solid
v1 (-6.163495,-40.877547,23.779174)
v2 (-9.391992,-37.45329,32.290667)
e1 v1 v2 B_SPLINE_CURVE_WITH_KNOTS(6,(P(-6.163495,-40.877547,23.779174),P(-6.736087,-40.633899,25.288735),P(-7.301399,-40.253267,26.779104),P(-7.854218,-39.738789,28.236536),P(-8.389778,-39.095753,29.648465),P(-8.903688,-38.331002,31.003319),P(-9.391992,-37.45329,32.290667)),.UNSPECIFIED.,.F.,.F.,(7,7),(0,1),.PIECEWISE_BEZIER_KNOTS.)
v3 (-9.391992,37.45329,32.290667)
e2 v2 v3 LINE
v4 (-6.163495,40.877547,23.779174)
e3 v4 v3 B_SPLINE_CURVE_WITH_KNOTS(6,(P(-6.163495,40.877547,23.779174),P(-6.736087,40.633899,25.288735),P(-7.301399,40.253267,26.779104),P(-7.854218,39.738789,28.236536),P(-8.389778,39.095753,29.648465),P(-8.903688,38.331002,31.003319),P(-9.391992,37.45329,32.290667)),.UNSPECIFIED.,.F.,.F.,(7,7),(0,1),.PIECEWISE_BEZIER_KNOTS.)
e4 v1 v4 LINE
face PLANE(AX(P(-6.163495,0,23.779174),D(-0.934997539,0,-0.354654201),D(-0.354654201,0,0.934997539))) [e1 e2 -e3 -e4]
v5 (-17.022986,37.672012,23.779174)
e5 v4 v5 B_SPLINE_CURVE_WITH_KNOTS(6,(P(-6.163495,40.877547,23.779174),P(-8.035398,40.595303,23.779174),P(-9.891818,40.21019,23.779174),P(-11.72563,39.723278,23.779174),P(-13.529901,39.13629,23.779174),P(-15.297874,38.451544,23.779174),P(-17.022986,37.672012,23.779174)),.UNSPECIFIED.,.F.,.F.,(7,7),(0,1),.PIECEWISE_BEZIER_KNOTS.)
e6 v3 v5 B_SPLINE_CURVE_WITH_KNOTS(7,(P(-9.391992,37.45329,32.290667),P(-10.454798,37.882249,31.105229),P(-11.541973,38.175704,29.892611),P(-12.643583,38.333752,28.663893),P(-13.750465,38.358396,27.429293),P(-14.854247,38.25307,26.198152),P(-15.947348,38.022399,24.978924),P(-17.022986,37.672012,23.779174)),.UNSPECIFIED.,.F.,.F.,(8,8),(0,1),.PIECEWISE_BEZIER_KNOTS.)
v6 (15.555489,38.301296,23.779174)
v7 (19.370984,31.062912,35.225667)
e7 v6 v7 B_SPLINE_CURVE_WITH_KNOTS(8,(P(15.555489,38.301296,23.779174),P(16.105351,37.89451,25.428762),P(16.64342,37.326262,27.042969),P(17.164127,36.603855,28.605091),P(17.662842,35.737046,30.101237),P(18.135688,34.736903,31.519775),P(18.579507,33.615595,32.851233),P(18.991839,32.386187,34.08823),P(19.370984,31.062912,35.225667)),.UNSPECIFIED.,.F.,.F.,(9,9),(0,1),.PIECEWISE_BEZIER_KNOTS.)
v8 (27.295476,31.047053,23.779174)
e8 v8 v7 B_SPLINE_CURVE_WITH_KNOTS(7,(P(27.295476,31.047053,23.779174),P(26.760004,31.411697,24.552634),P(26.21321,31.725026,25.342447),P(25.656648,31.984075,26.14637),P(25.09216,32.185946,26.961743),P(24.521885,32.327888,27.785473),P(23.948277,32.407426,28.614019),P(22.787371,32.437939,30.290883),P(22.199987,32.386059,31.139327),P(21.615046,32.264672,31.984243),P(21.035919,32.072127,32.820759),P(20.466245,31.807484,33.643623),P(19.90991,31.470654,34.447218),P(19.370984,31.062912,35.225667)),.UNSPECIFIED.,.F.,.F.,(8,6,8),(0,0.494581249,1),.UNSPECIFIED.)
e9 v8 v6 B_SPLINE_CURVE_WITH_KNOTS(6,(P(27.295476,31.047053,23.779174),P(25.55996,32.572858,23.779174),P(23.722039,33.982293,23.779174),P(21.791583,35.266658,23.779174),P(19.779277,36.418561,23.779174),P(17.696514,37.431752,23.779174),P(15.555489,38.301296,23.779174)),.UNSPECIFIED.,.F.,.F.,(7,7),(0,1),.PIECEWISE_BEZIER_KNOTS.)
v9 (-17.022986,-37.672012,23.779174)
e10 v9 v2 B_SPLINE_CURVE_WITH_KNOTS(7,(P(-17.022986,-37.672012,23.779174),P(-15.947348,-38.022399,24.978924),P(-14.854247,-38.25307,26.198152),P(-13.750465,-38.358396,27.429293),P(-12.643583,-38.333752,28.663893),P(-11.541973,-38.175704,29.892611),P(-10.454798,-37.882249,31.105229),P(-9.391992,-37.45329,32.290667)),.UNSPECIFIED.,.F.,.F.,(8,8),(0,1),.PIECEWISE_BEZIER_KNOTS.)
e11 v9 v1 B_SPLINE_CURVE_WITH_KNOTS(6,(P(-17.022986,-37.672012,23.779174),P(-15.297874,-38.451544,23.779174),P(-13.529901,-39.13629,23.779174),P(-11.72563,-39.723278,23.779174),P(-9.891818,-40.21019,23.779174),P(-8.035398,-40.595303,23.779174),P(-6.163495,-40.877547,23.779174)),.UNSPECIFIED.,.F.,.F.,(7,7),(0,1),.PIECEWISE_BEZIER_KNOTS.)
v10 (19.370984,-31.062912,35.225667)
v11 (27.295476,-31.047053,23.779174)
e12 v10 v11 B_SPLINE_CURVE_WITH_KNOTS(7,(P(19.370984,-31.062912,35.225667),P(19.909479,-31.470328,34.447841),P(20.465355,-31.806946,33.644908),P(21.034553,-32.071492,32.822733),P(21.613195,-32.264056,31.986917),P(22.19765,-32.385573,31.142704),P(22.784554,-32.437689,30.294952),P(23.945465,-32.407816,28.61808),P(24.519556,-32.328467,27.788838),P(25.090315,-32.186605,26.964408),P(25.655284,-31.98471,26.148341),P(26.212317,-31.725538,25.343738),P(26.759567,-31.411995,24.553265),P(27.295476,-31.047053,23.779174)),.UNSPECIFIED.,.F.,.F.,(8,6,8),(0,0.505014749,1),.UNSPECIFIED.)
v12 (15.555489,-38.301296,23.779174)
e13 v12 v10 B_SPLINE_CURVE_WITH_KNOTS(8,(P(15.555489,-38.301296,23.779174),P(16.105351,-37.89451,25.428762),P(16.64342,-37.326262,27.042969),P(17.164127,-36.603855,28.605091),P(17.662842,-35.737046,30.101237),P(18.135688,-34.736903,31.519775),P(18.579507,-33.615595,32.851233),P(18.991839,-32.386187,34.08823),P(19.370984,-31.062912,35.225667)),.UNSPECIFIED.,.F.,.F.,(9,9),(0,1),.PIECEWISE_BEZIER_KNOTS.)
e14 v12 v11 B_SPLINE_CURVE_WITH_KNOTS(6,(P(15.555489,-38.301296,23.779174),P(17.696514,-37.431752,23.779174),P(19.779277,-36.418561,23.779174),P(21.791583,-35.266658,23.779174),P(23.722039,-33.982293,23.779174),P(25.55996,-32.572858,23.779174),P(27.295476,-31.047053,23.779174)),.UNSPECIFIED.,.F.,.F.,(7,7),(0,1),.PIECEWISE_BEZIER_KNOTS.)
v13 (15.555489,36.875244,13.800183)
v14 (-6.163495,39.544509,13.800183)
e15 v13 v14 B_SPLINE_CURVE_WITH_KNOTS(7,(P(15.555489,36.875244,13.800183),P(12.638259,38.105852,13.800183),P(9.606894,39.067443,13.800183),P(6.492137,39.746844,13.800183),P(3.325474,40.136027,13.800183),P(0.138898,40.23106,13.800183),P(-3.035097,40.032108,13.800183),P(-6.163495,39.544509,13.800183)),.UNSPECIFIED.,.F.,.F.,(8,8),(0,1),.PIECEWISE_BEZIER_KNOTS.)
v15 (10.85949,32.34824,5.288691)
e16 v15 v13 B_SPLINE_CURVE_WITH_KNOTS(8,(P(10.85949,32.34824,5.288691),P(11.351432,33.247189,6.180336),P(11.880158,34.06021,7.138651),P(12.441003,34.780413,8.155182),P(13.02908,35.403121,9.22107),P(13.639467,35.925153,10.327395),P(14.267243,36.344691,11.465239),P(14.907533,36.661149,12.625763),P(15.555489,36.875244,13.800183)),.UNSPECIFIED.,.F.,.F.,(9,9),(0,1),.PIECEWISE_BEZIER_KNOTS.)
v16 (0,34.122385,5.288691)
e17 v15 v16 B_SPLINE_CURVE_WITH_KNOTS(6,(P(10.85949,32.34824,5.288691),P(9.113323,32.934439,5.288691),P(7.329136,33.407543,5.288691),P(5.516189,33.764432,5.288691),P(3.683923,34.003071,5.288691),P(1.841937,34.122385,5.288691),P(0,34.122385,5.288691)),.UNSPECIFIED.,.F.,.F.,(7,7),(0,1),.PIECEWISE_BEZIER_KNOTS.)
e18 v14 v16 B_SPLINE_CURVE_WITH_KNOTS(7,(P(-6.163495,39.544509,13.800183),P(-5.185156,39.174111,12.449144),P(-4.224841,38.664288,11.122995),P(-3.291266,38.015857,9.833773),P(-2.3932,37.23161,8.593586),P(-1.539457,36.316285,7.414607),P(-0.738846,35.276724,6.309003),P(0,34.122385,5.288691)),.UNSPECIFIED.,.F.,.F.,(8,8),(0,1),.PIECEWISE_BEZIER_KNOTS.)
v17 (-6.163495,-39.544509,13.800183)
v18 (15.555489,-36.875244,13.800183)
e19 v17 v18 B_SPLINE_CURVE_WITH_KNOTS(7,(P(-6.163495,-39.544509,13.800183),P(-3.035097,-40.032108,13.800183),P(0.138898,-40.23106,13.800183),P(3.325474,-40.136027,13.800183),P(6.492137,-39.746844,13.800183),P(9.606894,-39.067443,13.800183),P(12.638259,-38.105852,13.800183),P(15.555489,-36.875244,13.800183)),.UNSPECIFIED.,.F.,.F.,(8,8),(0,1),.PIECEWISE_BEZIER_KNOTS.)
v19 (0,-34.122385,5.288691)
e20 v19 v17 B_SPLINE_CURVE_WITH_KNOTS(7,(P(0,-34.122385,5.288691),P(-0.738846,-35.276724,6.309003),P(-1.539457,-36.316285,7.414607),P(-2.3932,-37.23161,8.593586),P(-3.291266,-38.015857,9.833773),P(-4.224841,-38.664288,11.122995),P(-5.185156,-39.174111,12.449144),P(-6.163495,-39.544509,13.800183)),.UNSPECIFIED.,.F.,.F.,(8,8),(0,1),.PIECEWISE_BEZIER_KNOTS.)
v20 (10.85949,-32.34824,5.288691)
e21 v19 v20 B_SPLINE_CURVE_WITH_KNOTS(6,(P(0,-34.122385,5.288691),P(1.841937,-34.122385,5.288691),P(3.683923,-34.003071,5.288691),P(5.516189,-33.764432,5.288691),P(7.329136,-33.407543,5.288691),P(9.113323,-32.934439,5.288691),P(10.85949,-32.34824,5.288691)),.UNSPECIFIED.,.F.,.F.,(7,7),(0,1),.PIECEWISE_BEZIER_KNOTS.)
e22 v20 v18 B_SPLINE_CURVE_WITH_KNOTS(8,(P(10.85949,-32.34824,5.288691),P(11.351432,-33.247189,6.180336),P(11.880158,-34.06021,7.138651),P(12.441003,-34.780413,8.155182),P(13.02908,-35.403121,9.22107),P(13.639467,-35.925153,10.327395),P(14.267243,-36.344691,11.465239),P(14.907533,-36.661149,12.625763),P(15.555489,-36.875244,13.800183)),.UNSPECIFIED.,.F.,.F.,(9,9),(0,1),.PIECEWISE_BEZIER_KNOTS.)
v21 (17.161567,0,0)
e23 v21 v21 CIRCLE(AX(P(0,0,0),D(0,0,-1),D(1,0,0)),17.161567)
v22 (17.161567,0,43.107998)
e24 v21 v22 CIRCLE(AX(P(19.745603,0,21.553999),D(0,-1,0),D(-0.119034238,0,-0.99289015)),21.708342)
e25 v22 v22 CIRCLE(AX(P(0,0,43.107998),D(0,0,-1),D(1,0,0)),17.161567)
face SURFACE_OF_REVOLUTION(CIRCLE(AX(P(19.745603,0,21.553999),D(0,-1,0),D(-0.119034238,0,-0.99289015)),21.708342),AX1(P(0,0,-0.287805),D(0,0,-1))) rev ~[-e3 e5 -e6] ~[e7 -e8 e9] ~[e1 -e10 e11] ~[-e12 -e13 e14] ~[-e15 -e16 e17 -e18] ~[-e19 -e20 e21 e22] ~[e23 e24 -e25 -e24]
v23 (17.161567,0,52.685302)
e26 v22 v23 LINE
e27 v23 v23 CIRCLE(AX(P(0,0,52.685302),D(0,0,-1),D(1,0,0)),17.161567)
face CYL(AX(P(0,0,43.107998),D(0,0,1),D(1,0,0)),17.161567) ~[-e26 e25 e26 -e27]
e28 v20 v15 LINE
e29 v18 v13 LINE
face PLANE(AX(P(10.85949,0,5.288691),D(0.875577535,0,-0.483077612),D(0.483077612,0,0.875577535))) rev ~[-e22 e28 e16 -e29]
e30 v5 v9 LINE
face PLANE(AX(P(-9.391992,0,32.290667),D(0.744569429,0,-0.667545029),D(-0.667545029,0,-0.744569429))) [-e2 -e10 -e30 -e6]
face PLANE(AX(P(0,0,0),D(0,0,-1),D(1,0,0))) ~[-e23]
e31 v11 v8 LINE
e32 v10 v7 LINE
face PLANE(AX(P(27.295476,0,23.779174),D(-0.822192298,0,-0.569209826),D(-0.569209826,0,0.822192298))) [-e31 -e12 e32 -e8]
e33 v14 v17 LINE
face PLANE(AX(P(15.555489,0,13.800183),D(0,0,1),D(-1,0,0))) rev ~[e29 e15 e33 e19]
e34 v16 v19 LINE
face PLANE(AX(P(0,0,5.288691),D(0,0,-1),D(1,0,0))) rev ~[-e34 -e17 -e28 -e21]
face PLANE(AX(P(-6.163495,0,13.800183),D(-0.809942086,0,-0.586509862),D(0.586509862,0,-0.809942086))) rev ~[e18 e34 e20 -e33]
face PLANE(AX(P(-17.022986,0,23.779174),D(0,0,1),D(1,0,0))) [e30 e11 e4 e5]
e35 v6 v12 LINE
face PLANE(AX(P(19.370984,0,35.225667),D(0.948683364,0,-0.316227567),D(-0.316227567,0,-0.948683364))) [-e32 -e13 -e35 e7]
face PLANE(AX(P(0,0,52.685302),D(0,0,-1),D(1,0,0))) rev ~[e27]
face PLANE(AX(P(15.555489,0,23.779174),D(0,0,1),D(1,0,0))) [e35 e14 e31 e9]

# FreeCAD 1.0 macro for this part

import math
import FreeCAD as App
import Part
import Sketcher
from FreeCAD import Vector
Q = App.Units.Quantity


def add_polygon(sketch, points):
    """Adds a closed chain of lines whose ends are joined by coincident constraints."""
    first, n = sketch.GeometryCount, len(points)
    for a, b in zip(points, points[1:] + points[:1]):
        sketch.addGeometry(Part.LineSegment(App.Vector(*a, 0), App.Vector(*b, 0)), False)
    for i in range(n):
        sketch.addConstraint(Sketcher.Constraint("Coincident", first + i, 2, first + (i + 1) % n, 1))

doc = App.newDocument("Part")
body = doc.addObject("PartDesign::Body", "Body")

# Sketch on XZ plane
sketch1 = body.newObject("Sketcher::SketchObject", "Sketch")
sketch1.AttachmentSupport = (doc.getObject("XZ_Plane"), [""])
sketch1.MapMode = "FlatFace"
sketch1.addGeometry([
    Part.LineSegment(Vector(0, 53, 0), Vector(0, 0, 0)),  # 0
    Part.LineSegment(Vector(0, 0, 0), Vector(17, 0, 0)),  # 1
    Part.ArcOfCircle(Part.Circle(Vector(20, 22, 0), Vector(0, 0, 1), 22), math.radians(-97), math.radians(97)),  # 2
    Part.LineSegment(Vector(17, 43, 0), Vector(17, 53, 0)),  # 3
    Part.LineSegment(Vector(17, 53, 0), Vector(0, 53, 0)),  # 4
], False)
sketch1.addConstraint([
    Sketcher.Constraint("Coincident", 0, 2, 1, 1),
    Sketcher.Constraint("Coincident", 1, 2, 2, 1),
    Sketcher.Constraint("Coincident", 2, 2, 3, 1),
    Sketcher.Constraint("Coincident", 3, 2, 4, 1),
    Sketcher.Constraint("Coincident", 4, 2, 0, 1),
    Sketcher.Constraint("Vertical", 0),
    Sketcher.Constraint("Horizontal", 1),
    Sketcher.Constraint("Vertical", 3),
    Sketcher.Constraint("Horizontal", 4),
    Sketcher.Constraint("Coincident", 0, 2, -1, 1),
    Sketcher.Constraint("Vertical", 1, 2, 2, 2),
    Sketcher.Constraint("Radius", 2, 21.708342),
    Sketcher.Constraint("DistanceY", -1, 1, 2, 3, 21.553999),
    Sketcher.Constraint("DistanceX", 1, 1, 1, 2, 17.161567),
    Sketcher.Constraint("DistanceY", 0, 2, 0, 1, 52.685302),
])
revolution = body.newObject("PartDesign::Revolution", "Revolution")
revolution.Profile = sketch1
revolution.ReferenceAxis = (sketch1, ["V_Axis"])
revolution.Angle = 360

# Sketch on XZ plane
sketch2 = body.newObject("Sketcher::SketchObject", "Sketch001")
sketch2.AttachmentSupport = (doc.getObject("XZ_Plane"), [""])
sketch2.MapMode = "FlatFace"
add_polygon(sketch2, [(-9, 32), (-17, 24), (-6, 24)])  # lines 0-2
add_polygon(sketch2, [(19, 35), (16, 24), (27, 24)])  # lines 3-5
add_polygon(sketch2, [(16, 14), (-6, 14), (0, 5), (11, 5)])  # lines 6-9
sketch2.addConstraint([
    Sketcher.Constraint("Horizontal", 1),
    Sketcher.Constraint("Horizontal", 4),
    Sketcher.Constraint("Horizontal", 6),
    Sketcher.Constraint("Horizontal", 8),
    Sketcher.Constraint("PointOnObject", 7, 2, -2),
    Sketcher.Constraint("Horizontal", 1, 2, 3, 2),
    Sketcher.Constraint("Vertical", 1, 2, 6, 2),
    Sketcher.Constraint("Vertical", 3, 2, 9, 2),
    Sketcher.Constraint("Equal", 1, 8),
    Sketcher.Constraint("DistanceX", 1, 1, 1, 2, 10.859491),
    Sketcher.Constraint("DistanceY", 2, 2, 5, 2, 2.935),
    Sketcher.Constraint("DistanceX", 8, 2, 3, 2, 4.695999),
    Sketcher.Constraint("Distance", 0, 11.43143),
    Sketcher.Constraint("DistanceX", 4, 1, 4, 2, 11.739987),
    Sketcher.Constraint("DistanceX", 6, 2, 6, 1, 21.718984),
    Sketcher.Constraint("DistanceY", -1, 1, 7, 2, 5.288691),
    Sketcher.Constraint("DistanceX", 2, 2, 3, 2, 24.947481),
    Sketcher.Constraint("DistanceX", 1, 2, 5, 2, 25.534479),
    Sketcher.Constraint("DistanceY", 6, 2, 1, 2, 9.978991),
    Sketcher.Constraint("Distance", 7, 10.508766),
])
pocket1 = body.newObject("PartDesign::Pocket", "Pocket")
pocket1.Profile = sketch2
pocket1.Length = Q("5 in")
pocket1.Midplane = True

doc.recompute()
